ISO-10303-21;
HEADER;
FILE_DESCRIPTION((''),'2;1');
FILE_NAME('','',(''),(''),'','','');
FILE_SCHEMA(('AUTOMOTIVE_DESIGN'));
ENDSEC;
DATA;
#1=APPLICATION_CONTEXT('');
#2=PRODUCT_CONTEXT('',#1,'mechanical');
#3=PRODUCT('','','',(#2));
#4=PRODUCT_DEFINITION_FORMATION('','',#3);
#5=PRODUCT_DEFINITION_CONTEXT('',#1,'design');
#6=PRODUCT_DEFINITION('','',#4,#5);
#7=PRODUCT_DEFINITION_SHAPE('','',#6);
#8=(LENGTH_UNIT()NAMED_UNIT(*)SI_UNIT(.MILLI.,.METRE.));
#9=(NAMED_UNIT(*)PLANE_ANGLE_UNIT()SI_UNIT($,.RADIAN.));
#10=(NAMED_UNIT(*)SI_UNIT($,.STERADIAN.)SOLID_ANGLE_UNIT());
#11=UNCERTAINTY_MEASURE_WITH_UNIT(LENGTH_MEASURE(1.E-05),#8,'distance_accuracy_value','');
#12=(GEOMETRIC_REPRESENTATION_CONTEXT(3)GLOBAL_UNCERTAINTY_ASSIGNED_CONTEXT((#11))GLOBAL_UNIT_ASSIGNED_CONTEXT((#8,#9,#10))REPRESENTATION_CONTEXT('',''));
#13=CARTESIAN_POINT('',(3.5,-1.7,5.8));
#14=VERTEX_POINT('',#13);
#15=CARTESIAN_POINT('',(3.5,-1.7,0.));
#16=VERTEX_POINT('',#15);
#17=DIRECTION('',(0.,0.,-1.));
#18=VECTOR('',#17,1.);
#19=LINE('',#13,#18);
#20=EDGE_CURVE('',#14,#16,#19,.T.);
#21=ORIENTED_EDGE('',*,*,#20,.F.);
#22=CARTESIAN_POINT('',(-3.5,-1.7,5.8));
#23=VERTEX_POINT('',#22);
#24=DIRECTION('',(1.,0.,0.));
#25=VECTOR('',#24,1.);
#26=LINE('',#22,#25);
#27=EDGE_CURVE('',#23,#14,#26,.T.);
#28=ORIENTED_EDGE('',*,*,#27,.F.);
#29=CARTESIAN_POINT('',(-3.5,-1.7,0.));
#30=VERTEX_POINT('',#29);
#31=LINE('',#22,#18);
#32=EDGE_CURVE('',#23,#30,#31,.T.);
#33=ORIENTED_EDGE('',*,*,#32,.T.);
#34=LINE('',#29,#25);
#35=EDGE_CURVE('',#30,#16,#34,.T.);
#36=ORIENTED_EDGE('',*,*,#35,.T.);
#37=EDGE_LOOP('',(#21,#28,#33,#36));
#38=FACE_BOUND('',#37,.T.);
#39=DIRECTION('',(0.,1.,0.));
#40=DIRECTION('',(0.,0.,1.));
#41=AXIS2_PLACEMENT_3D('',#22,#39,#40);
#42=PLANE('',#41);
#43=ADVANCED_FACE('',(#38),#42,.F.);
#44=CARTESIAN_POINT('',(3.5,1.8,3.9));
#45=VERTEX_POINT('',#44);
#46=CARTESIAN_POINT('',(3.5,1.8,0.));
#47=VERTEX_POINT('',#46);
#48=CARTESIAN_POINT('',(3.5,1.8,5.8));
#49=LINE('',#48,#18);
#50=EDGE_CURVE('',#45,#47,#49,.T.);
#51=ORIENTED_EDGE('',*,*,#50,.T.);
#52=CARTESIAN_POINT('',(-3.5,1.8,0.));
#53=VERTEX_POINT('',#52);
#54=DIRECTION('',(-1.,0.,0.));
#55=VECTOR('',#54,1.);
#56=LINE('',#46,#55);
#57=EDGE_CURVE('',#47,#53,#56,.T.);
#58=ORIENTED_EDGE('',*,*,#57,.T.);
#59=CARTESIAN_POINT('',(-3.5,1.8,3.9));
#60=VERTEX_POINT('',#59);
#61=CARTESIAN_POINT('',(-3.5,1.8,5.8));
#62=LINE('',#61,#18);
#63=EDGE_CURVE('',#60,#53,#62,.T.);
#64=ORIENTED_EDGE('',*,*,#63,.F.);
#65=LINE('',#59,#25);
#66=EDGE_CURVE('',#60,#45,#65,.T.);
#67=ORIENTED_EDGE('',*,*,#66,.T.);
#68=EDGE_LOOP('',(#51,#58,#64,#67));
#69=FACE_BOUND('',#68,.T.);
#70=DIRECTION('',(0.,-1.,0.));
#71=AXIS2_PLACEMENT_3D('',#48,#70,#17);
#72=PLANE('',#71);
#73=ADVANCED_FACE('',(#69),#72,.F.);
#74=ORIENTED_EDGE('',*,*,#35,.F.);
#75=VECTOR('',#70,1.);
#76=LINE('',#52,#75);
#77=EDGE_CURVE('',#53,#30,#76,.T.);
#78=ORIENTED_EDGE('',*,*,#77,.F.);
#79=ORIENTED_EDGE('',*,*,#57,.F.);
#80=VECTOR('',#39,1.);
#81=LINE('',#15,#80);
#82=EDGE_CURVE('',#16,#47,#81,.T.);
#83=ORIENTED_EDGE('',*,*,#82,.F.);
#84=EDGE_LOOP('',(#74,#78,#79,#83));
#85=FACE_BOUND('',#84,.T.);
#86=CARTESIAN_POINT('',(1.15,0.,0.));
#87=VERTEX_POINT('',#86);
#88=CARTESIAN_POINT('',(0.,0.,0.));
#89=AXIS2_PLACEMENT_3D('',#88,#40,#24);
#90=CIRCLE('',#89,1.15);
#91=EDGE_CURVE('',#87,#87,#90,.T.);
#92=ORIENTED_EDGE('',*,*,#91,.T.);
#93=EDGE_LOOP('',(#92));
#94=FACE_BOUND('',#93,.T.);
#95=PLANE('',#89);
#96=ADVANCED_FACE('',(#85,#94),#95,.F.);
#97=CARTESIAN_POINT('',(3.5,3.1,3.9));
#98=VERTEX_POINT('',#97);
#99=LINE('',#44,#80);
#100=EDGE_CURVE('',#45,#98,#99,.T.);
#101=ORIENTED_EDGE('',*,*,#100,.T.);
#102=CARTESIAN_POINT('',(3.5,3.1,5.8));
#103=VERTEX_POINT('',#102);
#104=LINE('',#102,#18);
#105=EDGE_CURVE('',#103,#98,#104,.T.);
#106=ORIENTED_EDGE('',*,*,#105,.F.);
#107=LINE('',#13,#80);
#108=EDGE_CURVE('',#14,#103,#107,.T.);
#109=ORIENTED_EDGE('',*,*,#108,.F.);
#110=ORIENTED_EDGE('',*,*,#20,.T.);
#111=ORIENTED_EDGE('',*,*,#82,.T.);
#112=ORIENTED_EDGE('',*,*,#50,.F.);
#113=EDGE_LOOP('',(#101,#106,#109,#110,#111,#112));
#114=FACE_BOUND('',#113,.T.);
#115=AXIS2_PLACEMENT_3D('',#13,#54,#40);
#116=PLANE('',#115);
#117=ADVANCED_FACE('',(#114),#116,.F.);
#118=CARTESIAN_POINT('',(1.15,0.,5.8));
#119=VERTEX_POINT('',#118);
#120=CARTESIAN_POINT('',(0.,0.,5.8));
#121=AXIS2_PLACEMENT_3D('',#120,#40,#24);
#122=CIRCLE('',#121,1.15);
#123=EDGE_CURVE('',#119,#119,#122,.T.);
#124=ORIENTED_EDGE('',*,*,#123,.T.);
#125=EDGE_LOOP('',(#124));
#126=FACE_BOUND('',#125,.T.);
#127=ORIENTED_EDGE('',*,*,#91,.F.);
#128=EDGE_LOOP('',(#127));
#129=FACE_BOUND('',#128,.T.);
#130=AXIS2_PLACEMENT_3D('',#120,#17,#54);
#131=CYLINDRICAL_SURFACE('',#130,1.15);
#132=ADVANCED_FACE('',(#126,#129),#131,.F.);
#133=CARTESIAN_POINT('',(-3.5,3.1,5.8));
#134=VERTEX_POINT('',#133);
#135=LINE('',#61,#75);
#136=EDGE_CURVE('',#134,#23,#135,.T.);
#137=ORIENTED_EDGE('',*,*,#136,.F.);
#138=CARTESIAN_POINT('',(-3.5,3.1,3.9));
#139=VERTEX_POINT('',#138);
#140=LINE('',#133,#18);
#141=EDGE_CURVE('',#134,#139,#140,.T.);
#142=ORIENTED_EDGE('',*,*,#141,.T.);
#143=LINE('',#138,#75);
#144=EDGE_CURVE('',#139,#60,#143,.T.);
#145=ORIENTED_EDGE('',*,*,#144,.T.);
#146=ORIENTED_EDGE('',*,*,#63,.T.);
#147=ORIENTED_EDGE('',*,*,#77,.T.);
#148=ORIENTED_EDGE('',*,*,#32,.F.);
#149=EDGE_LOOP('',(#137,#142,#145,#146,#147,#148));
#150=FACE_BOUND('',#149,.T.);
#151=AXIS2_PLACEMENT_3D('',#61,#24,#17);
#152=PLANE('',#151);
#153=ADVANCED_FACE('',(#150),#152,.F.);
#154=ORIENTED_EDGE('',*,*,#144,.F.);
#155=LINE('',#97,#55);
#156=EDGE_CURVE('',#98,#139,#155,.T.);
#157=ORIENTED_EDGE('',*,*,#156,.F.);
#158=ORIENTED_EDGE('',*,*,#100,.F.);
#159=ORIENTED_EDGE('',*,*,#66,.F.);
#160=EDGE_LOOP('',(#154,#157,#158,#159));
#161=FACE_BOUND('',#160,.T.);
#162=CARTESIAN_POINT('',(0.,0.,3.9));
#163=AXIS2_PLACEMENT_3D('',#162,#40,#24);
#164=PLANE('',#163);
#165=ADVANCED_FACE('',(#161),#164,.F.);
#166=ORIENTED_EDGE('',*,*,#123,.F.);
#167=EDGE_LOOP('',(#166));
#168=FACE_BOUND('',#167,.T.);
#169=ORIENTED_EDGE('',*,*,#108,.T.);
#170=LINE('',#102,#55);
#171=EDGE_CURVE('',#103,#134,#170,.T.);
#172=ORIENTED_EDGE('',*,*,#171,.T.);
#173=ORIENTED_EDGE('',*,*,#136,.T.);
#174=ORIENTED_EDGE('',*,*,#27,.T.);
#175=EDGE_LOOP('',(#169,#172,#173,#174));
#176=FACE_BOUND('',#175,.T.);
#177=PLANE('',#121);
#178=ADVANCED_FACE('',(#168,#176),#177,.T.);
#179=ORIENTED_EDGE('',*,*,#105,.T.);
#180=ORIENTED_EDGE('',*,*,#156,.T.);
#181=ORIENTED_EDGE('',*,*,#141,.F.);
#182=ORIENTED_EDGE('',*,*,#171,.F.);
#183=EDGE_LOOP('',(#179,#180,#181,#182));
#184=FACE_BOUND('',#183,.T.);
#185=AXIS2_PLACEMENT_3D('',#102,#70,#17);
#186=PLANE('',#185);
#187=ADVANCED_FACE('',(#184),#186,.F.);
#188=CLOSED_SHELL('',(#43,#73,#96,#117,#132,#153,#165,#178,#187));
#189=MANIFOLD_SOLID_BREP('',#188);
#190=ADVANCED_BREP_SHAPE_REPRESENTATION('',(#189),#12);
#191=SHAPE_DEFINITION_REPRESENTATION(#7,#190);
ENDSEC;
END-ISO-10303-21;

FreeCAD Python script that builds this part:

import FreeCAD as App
import Part
import Sketcher
from FreeCAD import Vector
Q = App.Units.Quantity


def add_polygon(sketch, points):
    """Adds a closed chain of lines whose ends are joined by coincident constraints."""
    first, n = sketch.GeometryCount, len(points)
    for a, b in zip(points, points[1:] + points[:1]):
        sketch.addGeometry(Part.LineSegment(App.Vector(*a, 0), App.Vector(*b, 0)), False)
    for i in range(n):
        sketch.addConstraint(Sketcher.Constraint("Coincident", first + i, 2, first + (i + 1) % n, 1))

doc = App.newDocument("Part")
body = doc.addObject("PartDesign::Body", "Body")

# Sketch on XY plane
sketch1 = body.newObject("Sketcher::SketchObject", "Sketch")
sketch1.AttachmentSupport = (doc.getObject("XY_Plane"), [""])
sketch1.MapMode = "FlatFace"
add_polygon(sketch1, [(-3.5, 1.8), (-3.5, -1.7), (3.5, -1.7), (3.5, 1.8)])  # lines 0-3
sketch1.addGeometry(Part.Circle(Vector(0, 0, 0), Vector(0, 0, 1), 1.1), False)  # 4
sketch1.addConstraint([
    Sketcher.Constraint("Vertical", 0),
    Sketcher.Constraint("Horizontal", 1),
    Sketcher.Constraint("Vertical", 2),
    Sketcher.Constraint("Horizontal", 3),
    Sketcher.Constraint("Coincident", 4, 3, -1, 1),
    Sketcher.Constraint("Diameter", 4, Q("2.3 mm")),
    Sketcher.Constraint("DistanceX", 1, 1, 1, 2, Q("7 mm")),
    Sketcher.Constraint("DistanceY", 0, 2, 0, 1, Q("3.5 mm")),
    Sketcher.Constraint("DistanceX", 0, 2, -1, 1, Q("3.5 mm")),
    Sketcher.Constraint("DistanceY", 0, 2, -1, 1, Q("1.7 mm")),
])
pad1 = body.newObject("PartDesign::Pad", "Pad")
pad1.Profile = sketch1
pad1.Length = 5.8

# Sketch on XY plane
sketch2 = body.newObject("Sketcher::SketchObject", "Sketch001")
sketch2.AttachmentSupport = (doc.getObject("XY_Plane"), [""])
sketch2.MapMode = "FlatFace"
sketch2.AttachmentOffset = App.Placement(Vector(0, 0, 3.9), App.Rotation())
add_polygon(sketch2, [(-3.5, 3.1), (-3.5, 1.8), (3.5, 1.8), (3.5, 3.1)])  # lines 0-3
sketch2.addConstraint([
    Sketcher.Constraint("Vertical", 0),
    Sketcher.Constraint("Horizontal", 1),
    Sketcher.Constraint("Vertical", 2),
    Sketcher.Constraint("Horizontal", 3),
    Sketcher.Constraint("DistanceX", 1, 1, 1, 2, Q("7 mm")),
    Sketcher.Constraint("DistanceY", 0, 2, 0, 1, Q("1.3 mm")),
    Sketcher.Constraint("DistanceX", 0, 2, -1, 1, Q("3.5 mm")),
    Sketcher.Constraint("DistanceY", -1, 1, 0, 2, Q("1.8 mm")),
])
pad2 = body.newObject("PartDesign::Pad", "Pad001")
pad2.Profile = sketch2
pad2.Length = 1.9

doc.recompute()
